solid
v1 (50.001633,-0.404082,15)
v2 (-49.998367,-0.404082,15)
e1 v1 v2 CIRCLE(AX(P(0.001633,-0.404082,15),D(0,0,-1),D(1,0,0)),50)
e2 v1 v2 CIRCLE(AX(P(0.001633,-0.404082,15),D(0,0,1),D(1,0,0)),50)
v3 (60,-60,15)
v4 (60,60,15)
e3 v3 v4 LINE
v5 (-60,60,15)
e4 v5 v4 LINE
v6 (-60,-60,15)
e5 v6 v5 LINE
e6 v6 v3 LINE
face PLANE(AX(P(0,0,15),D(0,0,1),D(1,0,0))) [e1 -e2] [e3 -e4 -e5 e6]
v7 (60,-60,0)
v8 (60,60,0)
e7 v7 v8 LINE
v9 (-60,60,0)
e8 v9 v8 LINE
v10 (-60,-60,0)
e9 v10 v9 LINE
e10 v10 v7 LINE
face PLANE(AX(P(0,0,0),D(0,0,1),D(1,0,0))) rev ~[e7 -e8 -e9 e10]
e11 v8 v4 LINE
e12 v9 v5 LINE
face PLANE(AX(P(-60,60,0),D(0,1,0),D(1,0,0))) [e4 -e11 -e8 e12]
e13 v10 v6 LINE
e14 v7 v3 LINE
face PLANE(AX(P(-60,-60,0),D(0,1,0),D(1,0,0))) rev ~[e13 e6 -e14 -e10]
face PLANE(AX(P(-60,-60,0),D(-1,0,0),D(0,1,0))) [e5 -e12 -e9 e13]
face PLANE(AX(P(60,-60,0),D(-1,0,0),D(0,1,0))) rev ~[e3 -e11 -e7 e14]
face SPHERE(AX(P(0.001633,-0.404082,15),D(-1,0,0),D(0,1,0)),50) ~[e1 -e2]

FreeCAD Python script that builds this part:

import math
import FreeCAD as App
import Part
import Sketcher
from FreeCAD import Vector

doc = App.newDocument("Part")
body = doc.addObject("PartDesign::Body", "Body")

# Sketch on XY plane
sketch1 = doc.addObject("Sketcher::SketchObject", "Sketch")
body.addObject(sketch1)
sketch1.AttachmentSupport = (doc.XY_Plane, [""])
sketch1.MapMode = "FlatFace"
sketch1.addGeometry(Part.LineSegment(Vector(-60, 60, 0), Vector(-60, -60, 0)), False)
sketch1.addGeometry(Part.LineSegment(Vector(-60, -60, 0), Vector(60, -60, 0)), False)
sketch1.addGeometry(Part.LineSegment(Vector(60, -60, 0), Vector(60, 60, 0)), False)
sketch1.addGeometry(Part.LineSegment(Vector(60, 60, 0), Vector(-60, 60, 0)), False)
sketch1.addConstraint(Sketcher.Constraint("Coincident", 0, 2, 1, 1))
sketch1.addConstraint(Sketcher.Constraint("Coincident", 1, 2, 2, 1))
sketch1.addConstraint(Sketcher.Constraint("Coincident", 2, 2, 3, 1))
sketch1.addConstraint(Sketcher.Constraint("Coincident", 3, 2, 0, 1))
sketch1.addConstraint(Sketcher.Constraint("Vertical", 0))
sketch1.addConstraint(Sketcher.Constraint("Horizontal", 1))
sketch1.addConstraint(Sketcher.Constraint("Vertical", 2))
sketch1.addConstraint(Sketcher.Constraint("Horizontal", 3))
sketch1.addConstraint(Sketcher.Constraint("Symmetric", 0, 2, 2, 2, -1, 1))
sketch1.addConstraint(Sketcher.Constraint("Equal", 3, 0))
sketch1.addConstraint(Sketcher.Constraint("DistanceX", 1, 1, 1, 2, 120.0))
pad1 = doc.addObject("PartDesign::Pad", "Pad")
body.addObject(pad1)
pad1.Profile = sketch1
pad1.Length = 15

# Sketch on XY plane
sketch2 = doc.addObject("Sketcher::SketchObject", "Sketch001")
body.addObject(sketch2)
sketch2.AttachmentSupport = (doc.XY_Plane, [""])
sketch2.MapMode = "FlatFace"
sketch2.AttachmentOffset = App.Placement(Vector(0, 0, 15), App.Rotation())
sketch2.addGeometry(Part.ArcOfCircle(Part.Circle(Vector(0.001633, -0.404082, 0), Vector(0, 0, 1), 50), math.radians(0), math.radians(180)), False)
sketch2.addGeometry(Part.LineSegment(Vector(-49.998367, -0.404082, 0), Vector(50.001633, -0.404082, 0)), False)
sketch2.addGeometry(Part.LineSegment(Vector(-49.998367, -0.404082, 0), Vector(50.001633, -0.404082, 0)), True)  # axis
sketch2.addConstraint(Sketcher.Constraint("Coincident", 0, 1, 1, 2))
sketch2.addConstraint(Sketcher.Constraint("Coincident", 1, 1, 0, 2))
sketch2.addConstraint(Sketcher.Constraint("Horizontal", 1))
sketch2.addConstraint(Sketcher.Constraint("Horizontal", 2))
sketch2.addConstraint(Sketcher.Constraint("Coincident", 2, 1, 1, 1))
sketch2.addConstraint(Sketcher.Constraint("Equal", 1, 2))
sketch2.addConstraint(Sketcher.Constraint("Radius", 0, 50.0))
sketch2.addConstraint(Sketcher.Constraint("DistanceX", -1, 1, 0, 3, 0.001633))
sketch2.addConstraint(Sketcher.Constraint("DistanceY", 0, 3, -1, 1, 0.404082))
sketch2.addConstraint(Sketcher.Constraint("DistanceY", 0, 1, -1, 1, 0.404082))
revolution = doc.addObject("PartDesign::Revolution", "Revolution")
body.addObject(revolution)
revolution.Profile = sketch2
revolution.ReferenceAxis = (sketch2, ["Axis0"])
revolution.Angle = 180

doc.recompute()
